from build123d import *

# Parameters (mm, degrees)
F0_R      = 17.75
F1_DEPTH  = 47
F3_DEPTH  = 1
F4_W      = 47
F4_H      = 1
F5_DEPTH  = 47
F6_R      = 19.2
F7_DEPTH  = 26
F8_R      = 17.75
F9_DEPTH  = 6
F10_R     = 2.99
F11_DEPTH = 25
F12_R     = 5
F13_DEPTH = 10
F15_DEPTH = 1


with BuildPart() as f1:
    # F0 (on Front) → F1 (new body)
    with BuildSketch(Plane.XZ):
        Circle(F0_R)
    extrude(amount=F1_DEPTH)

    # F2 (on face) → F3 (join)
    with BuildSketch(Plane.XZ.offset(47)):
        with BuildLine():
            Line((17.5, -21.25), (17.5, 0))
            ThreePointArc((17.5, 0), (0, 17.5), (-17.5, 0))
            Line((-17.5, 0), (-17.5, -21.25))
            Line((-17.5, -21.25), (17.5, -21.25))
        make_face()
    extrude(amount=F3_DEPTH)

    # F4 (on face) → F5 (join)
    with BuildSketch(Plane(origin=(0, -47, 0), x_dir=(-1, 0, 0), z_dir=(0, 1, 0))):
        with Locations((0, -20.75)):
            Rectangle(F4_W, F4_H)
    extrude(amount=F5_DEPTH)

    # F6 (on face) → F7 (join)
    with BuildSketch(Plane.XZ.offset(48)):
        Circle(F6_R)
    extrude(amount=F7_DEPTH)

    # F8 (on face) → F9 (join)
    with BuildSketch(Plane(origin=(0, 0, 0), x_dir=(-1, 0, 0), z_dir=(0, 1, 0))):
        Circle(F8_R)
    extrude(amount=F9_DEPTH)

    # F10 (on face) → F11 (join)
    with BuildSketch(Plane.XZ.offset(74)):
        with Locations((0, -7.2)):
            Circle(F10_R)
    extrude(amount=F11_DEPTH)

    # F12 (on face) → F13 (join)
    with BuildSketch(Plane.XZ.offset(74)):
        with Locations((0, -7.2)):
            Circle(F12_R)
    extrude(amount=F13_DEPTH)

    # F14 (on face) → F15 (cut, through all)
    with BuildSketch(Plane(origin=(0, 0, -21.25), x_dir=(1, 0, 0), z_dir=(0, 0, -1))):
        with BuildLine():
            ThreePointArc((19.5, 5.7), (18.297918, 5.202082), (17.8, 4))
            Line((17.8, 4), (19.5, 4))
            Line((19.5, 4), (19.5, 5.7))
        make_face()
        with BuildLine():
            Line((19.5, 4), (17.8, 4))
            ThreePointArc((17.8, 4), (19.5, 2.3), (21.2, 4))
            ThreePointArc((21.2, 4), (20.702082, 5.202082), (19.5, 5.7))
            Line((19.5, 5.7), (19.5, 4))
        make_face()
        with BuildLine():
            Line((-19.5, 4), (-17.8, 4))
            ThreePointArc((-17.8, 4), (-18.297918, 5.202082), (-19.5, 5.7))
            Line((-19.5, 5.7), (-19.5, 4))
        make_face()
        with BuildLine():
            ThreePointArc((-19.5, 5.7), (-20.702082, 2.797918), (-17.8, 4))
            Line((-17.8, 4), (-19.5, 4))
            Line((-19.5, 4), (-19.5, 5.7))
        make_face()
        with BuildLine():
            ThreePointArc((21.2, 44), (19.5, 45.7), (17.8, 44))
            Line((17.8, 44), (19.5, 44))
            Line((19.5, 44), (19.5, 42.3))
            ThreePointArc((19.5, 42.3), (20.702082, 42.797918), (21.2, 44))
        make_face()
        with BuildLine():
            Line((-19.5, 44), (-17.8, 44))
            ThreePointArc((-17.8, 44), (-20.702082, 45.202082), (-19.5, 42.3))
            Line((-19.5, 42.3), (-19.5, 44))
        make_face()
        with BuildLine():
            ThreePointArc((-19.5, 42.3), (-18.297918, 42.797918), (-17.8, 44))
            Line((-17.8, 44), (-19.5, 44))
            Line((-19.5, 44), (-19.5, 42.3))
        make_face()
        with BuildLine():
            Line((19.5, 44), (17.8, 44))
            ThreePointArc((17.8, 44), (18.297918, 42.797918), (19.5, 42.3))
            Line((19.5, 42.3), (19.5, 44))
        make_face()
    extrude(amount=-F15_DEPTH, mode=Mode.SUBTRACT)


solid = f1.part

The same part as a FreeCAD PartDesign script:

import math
import FreeCAD as App
import Part
import Sketcher
from FreeCAD import Vector
Q = App.Units.Quantity

doc = App.newDocument("Part")
body = doc.addObject("PartDesign::Body", "Body")

# Sketch on XZ plane
sketch1 = body.newObject("Sketcher::SketchObject", "Sketch")
sketch1.AttachmentSupport = (doc.getObject("XZ_Plane"), [""])
sketch1.MapMode = "FlatFace"
sketch1.addGeometry(Part.Circle(Vector(0, 0, 0), Vector(0, 0, 1), 18), False)
sketch1.addConstraint(Sketcher.Constraint("Coincident", 0, 3, -1, 1))
sketch1.addConstraint(Sketcher.Constraint("Diameter", 0, Q("35.5 mm")))
pad1 = body.newObject("PartDesign::Pad", "Pad")
pad1.Profile = sketch1
pad1.Length = 47

# Sketch on XZ plane
sketch2 = body.newObject("Sketcher::SketchObject", "Sketch001")
sketch2.AttachmentSupport = (doc.getObject("XZ_Plane"), [""])
sketch2.MapMode = "FlatFace"
sketch2.AttachmentOffset = App.Placement(Vector(0, 0, 47), App.Rotation())
sketch2.addGeometry(Part.LineSegment(Vector(18, -21, 0), Vector(18, 0, 0)), False)
sketch2.addGeometry(Part.ArcOfCircle(Part.Circle(Vector(0, 0, 0), Vector(0, 0, 1), 18), math.radians(0), math.radians(180)), False)
sketch2.addGeometry(Part.LineSegment(Vector(-18, 0, 0), Vector(-18, -21, 0)), False)
sketch2.addGeometry(Part.LineSegment(Vector(-18, -21, 0), Vector(18, -21, 0)), False)
sketch2.addConstraint(Sketcher.Constraint("Tangent", 0, 2, 1, 1))
sketch2.addConstraint(Sketcher.Constraint("Tangent", 1, 2, 2, 1))
sketch2.addConstraint(Sketcher.Constraint("Coincident", 2, 2, 3, 1))
sketch2.addConstraint(Sketcher.Constraint("Coincident", 3, 2, 0, 1))
sketch2.addConstraint(Sketcher.Constraint("Vertical", 0))
sketch2.addConstraint(Sketcher.Constraint("Vertical", 2))
sketch2.addConstraint(Sketcher.Constraint("Horizontal", 3))
sketch2.addConstraint(Sketcher.Constraint("Coincident", 1, 3, -1, 1))
sketch2.addConstraint(Sketcher.Constraint("Radius", 1, Q("17.5 mm")))
sketch2.addConstraint(Sketcher.Constraint("DistanceY", 0, 1, 0, 2, Q("21.25 mm")))
pad2 = body.newObject("PartDesign::Pad", "Pad001")
pad2.Profile = sketch2
pad2.Length = 1

# Sketch on XZ plane
sketch3 = body.newObject("Sketcher::SketchObject", "Sketch002")
sketch3.AttachmentSupport = (doc.getObject("XZ_Plane"), [""])
sketch3.MapMode = "FlatFace"
sketch3.AttachmentOffset = App.Placement(Vector(0, 0, 47), App.Rotation())
sketch3.addGeometry(Part.LineSegment(Vector(23.5, -20.2, 0), Vector(23.5, -21.2, 0)), False)
sketch3.addGeometry(Part.LineSegment(Vector(23.5, -21.2, 0), Vector(-23.5, -21.2, 0)), False)
sketch3.addGeometry(Part.LineSegment(Vector(-23.5, -21.2, 0), Vector(-23.5, -20.2, 0)), False)
sketch3.addGeometry(Part.LineSegment(Vector(-23.5, -20.2, 0), Vector(23.5, -20.2, 0)), False)
sketch3.addConstraint(Sketcher.Constraint("Coincident", 0, 2, 1, 1))
sketch3.addConstraint(Sketcher.Constraint("Coincident", 1, 2, 2, 1))
sketch3.addConstraint(Sketcher.Constraint("Coincident", 2, 2, 3, 1))
sketch3.addConstraint(Sketcher.Constraint("Coincident", 3, 2, 0, 1))
sketch3.addConstraint(Sketcher.Constraint("Vertical", 0))
sketch3.addConstraint(Sketcher.Constraint("Horizontal", 1))
sketch3.addConstraint(Sketcher.Constraint("Vertical", 2))
sketch3.addConstraint(Sketcher.Constraint("Horizontal", 3))
sketch3.addConstraint(Sketcher.Constraint("DistanceX", 1, 2, 1, 1, Q("47 mm")))
sketch3.addConstraint(Sketcher.Constraint("DistanceY", 0, 2, 0, 1, Q("1 mm")))
sketch3.addConstraint(Sketcher.Constraint("DistanceX", -1, 1, 0, 2, Q("23.5 mm")))
sketch3.addConstraint(Sketcher.Constraint("DistanceY", 0, 2, -1, 1, Q("21.25 mm")))
pad3 = body.newObject("PartDesign::Pad", "Pad002")
pad3.Profile = sketch3
pad3.Length = 47
pad3.Reversed = True

# Sketch on XZ plane
sketch4 = body.newObject("Sketcher::SketchObject", "Sketch003")
sketch4.AttachmentSupport = (doc.getObject("XZ_Plane"), [""])
sketch4.MapMode = "FlatFace"
sketch4.AttachmentOffset = App.Placement(Vector(0, 0, 48), App.Rotation())
sketch4.addGeometry(Part.Circle(Vector(0, 0, 0), Vector(0, 0, 1), 19), False)
sketch4.addConstraint(Sketcher.Constraint("Coincident", 0, 3, -1, 1))
sketch4.addConstraint(Sketcher.Constraint("Diameter", 0, Q("38.4 mm")))
pad4 = body.newObject("PartDesign::Pad", "Pad003")
pad4.Profile = sketch4
pad4.Length = 26

# Sketch on XZ plane
sketch5 = body.newObject("Sketcher::SketchObject", "Sketch004")
sketch5.AttachmentSupport = (doc.getObject("XZ_Plane"), [""])
sketch5.MapMode = "FlatFace"
sketch5.addGeometry(Part.Circle(Vector(0, 0, 0), Vector(0, 0, 1), 18), False)
sketch5.addConstraint(Sketcher.Constraint("Coincident", 0, 3, -1, 1))
sketch5.addConstraint(Sketcher.Constraint("Diameter", 0, Q("35.5 mm")))
pad5 = body.newObject("PartDesign::Pad", "Pad004")
pad5.Profile = sketch5
pad5.Length = 6
pad5.Reversed = True

# Sketch on XZ plane
sketch6 = body.newObject("Sketcher::SketchObject", "Sketch005")
sketch6.AttachmentSupport = (doc.getObject("XZ_Plane"), [""])
sketch6.MapMode = "FlatFace"
sketch6.AttachmentOffset = App.Placement(Vector(0, 0, 74), App.Rotation())
sketch6.addGeometry(Part.Circle(Vector(0, -7.2, 0), Vector(0, 0, 1), 3), False)
sketch6.addConstraint(Sketcher.Constraint("PointOnObject", 0, 3, -2))
sketch6.addConstraint(Sketcher.Constraint("Diameter", 0, Q("5.98 mm")))
sketch6.addConstraint(Sketcher.Constraint("DistanceY", 0, 3, -1, 1, Q("7.2 mm")))
pad6 = body.newObject("PartDesign::Pad", "Pad005")
pad6.Profile = sketch6
pad6.Length = 25

# Sketch on XZ plane
sketch7 = body.newObject("Sketcher::SketchObject", "Sketch006")
sketch7.AttachmentSupport = (doc.getObject("XZ_Plane"), [""])
sketch7.MapMode = "FlatFace"
sketch7.AttachmentOffset = App.Placement(Vector(0, 0, 74), App.Rotation())
sketch7.addGeometry(Part.Circle(Vector(0, -7, 0), Vector(0, 0, 1), 5), False)
sketch7.addConstraint(Sketcher.Constraint("PointOnObject", 0, 3, -2))
sketch7.addConstraint(Sketcher.Constraint("Diameter", 0, Q("10 mm")))
sketch7.addConstraint(Sketcher.Constraint("DistanceY", 0, 3, -1, 1, Q("7.2 mm")))
pad7 = body.newObject("PartDesign::Pad", "Pad006")
pad7.Profile = sketch7
pad7.Length = 10

# Sketch on XY plane
sketch8 = body.newObject("Sketcher::SketchObject", "Sketch007")
sketch8.AttachmentSupport = (doc.getObject("XY_Plane"), [""])
sketch8.MapMode = "FlatFace"
sketch8.AttachmentOffset = App.Placement(Vector(0, 0, -21.25), App.Rotation())
sketch8.addGeometry(Part.ArcOfCircle(Part.Circle(Vector(19.5, -4, 0), Vector(0, 0, 1), 1.7), math.radians(180), math.radians(270)), False)
sketch8.addGeometry(Part.ArcOfCircle(Part.Circle(Vector(19.5, -4, 0), Vector(0, 0, 1), 1.7), math.radians(0), math.radians(180)), False)
sketch8.addGeometry(Part.ArcOfCircle(Part.Circle(Vector(19.5, -4, 0), Vector(0, 0, 1), 1.7), math.radians(-90), math.radians(0)), False)
sketch8.addGeometry(Part.ArcOfCircle(Part.Circle(Vector(-19.5, -4, 0), Vector(0, 0, 1), 1.7), math.radians(-90), math.radians(0)), False)
sketch8.addGeometry(Part.ArcOfCircle(Part.Circle(Vector(-19.5, -4, 0), Vector(0, 0, 1), 1.7), math.radians(0), math.radians(270)), False)
sketch8.addGeometry(Part.ArcOfCircle(Part.Circle(Vector(19.5, -44, 0), Vector(0, 0, 1), 1.7), math.radians(180), math.radians(360)), False)
sketch8.addGeometry(Part.ArcOfCircle(Part.Circle(Vector(19.5, -44, 0), Vector(0, 0, 1), 1.7), math.radians(90), math.radians(180)), False)
sketch8.addGeometry(Part.ArcOfCircle(Part.Circle(Vector(19.5, -44, 0), Vector(0, 0, 1), 1.7), math.radians(0), math.radians(90)), False)
sketch8.addGeometry(Part.ArcOfCircle(Part.Circle(Vector(-19.5, -44, 0), Vector(0, 0, 1), 1.7), math.radians(90), math.radians(360)), False)
sketch8.addGeometry(Part.ArcOfCircle(Part.Circle(Vector(-19.5, -44, 0), Vector(0, 0, 1), 1.7), math.radians(0), math.radians(90)), False)
sketch8.addConstraint(Sketcher.Constraint("Tangent", 0, 1, 1, 2))
sketch8.addConstraint(Sketcher.Constraint("Tangent", 1, 1, 2, 2))
sketch8.addConstraint(Sketcher.Constraint("Tangent", 2, 1, 0, 2))
sketch8.addConstraint(Sketcher.Constraint("Tangent", 3, 1, 4, 2))
sketch8.addConstraint(Sketcher.Constraint("Coincident", 4, 1, 3, 2))
sketch8.addConstraint(Sketcher.Constraint("Tangent", 5, 1, 6, 2))
sketch8.addConstraint(Sketcher.Constraint("Tangent", 6, 1, 7, 2))
sketch8.addConstraint(Sketcher.Constraint("Tangent", 7, 1, 5, 2))
sketch8.addConstraint(Sketcher.Constraint("Tangent", 8, 1, 9, 2))
sketch8.addConstraint(Sketcher.Constraint("Coincident", 9, 1, 8, 2))
sketch8.addConstraint(Sketcher.Constraint("Equal", 2, 3))
sketch8.addConstraint(Sketcher.Constraint("Equal", 4, 5))
sketch8.addConstraint(Sketcher.Constraint("Equal", 7, 8))
sketch8.addConstraint(Sketcher.Constraint("Symmetric", 0, 3, 3, 3, -2))
sketch8.addConstraint(Sketcher.Constraint("Symmetric", 5, 3, 8, 3, -2))
sketch8.addConstraint(Sketcher.Constraint("Horizontal", 4, 3, 0, 1))
sketch8.addConstraint(Sketcher.Constraint("Horizontal", 0, 1, 1, 1))
sketch8.addConstraint(Sketcher.Constraint("Horizontal", 1, 1, 4, 1))
sketch8.addConstraint(Sketcher.Constraint("Horizontal", 9, 3, 5, 1))
sketch8.addConstraint(Sketcher.Constraint("Horizontal", 5, 1, 7, 1))
sketch8.addConstraint(Sketcher.Constraint("Horizontal", 7, 1, 9, 1))
sketch8.addConstraint(Sketcher.Constraint("Vertical", 2, 3, 5, 3))
sketch8.addConstraint(Sketcher.Constraint("Vertical", 7, 3, 2, 1))
sketch8.addConstraint(Sketcher.Constraint("Vertical", 9, 3, 3, 1))
sketch8.addConstraint(Sketcher.Constraint("Vertical", 2, 1, 6, 1))
sketch8.addConstraint(Sketcher.Constraint("Vertical", 3, 1, 8, 1))
sketch8.addConstraint(Sketcher.Constraint("Radius", 0, Q("1.699998 mm")))
sketch8.addConstraint(Sketcher.Constraint("DistanceY", 0, 3, -1, 1, Q("4.000002 mm")))
sketch8.addConstraint(Sketcher.Constraint("DistanceY", 5, 3, -1, 1, Q("44 mm")))
sketch8.addConstraint(Sketcher.Constraint("DistanceX", 3, 3, 1, 3, Q("38.999998 mm")))
pocket1 = body.newObject("PartDesign::Pocket", "Pocket")
pocket1.Profile = sketch8
pocket1.Type = "ThroughAll"
pocket1.Reversed = True

doc.recompute()
